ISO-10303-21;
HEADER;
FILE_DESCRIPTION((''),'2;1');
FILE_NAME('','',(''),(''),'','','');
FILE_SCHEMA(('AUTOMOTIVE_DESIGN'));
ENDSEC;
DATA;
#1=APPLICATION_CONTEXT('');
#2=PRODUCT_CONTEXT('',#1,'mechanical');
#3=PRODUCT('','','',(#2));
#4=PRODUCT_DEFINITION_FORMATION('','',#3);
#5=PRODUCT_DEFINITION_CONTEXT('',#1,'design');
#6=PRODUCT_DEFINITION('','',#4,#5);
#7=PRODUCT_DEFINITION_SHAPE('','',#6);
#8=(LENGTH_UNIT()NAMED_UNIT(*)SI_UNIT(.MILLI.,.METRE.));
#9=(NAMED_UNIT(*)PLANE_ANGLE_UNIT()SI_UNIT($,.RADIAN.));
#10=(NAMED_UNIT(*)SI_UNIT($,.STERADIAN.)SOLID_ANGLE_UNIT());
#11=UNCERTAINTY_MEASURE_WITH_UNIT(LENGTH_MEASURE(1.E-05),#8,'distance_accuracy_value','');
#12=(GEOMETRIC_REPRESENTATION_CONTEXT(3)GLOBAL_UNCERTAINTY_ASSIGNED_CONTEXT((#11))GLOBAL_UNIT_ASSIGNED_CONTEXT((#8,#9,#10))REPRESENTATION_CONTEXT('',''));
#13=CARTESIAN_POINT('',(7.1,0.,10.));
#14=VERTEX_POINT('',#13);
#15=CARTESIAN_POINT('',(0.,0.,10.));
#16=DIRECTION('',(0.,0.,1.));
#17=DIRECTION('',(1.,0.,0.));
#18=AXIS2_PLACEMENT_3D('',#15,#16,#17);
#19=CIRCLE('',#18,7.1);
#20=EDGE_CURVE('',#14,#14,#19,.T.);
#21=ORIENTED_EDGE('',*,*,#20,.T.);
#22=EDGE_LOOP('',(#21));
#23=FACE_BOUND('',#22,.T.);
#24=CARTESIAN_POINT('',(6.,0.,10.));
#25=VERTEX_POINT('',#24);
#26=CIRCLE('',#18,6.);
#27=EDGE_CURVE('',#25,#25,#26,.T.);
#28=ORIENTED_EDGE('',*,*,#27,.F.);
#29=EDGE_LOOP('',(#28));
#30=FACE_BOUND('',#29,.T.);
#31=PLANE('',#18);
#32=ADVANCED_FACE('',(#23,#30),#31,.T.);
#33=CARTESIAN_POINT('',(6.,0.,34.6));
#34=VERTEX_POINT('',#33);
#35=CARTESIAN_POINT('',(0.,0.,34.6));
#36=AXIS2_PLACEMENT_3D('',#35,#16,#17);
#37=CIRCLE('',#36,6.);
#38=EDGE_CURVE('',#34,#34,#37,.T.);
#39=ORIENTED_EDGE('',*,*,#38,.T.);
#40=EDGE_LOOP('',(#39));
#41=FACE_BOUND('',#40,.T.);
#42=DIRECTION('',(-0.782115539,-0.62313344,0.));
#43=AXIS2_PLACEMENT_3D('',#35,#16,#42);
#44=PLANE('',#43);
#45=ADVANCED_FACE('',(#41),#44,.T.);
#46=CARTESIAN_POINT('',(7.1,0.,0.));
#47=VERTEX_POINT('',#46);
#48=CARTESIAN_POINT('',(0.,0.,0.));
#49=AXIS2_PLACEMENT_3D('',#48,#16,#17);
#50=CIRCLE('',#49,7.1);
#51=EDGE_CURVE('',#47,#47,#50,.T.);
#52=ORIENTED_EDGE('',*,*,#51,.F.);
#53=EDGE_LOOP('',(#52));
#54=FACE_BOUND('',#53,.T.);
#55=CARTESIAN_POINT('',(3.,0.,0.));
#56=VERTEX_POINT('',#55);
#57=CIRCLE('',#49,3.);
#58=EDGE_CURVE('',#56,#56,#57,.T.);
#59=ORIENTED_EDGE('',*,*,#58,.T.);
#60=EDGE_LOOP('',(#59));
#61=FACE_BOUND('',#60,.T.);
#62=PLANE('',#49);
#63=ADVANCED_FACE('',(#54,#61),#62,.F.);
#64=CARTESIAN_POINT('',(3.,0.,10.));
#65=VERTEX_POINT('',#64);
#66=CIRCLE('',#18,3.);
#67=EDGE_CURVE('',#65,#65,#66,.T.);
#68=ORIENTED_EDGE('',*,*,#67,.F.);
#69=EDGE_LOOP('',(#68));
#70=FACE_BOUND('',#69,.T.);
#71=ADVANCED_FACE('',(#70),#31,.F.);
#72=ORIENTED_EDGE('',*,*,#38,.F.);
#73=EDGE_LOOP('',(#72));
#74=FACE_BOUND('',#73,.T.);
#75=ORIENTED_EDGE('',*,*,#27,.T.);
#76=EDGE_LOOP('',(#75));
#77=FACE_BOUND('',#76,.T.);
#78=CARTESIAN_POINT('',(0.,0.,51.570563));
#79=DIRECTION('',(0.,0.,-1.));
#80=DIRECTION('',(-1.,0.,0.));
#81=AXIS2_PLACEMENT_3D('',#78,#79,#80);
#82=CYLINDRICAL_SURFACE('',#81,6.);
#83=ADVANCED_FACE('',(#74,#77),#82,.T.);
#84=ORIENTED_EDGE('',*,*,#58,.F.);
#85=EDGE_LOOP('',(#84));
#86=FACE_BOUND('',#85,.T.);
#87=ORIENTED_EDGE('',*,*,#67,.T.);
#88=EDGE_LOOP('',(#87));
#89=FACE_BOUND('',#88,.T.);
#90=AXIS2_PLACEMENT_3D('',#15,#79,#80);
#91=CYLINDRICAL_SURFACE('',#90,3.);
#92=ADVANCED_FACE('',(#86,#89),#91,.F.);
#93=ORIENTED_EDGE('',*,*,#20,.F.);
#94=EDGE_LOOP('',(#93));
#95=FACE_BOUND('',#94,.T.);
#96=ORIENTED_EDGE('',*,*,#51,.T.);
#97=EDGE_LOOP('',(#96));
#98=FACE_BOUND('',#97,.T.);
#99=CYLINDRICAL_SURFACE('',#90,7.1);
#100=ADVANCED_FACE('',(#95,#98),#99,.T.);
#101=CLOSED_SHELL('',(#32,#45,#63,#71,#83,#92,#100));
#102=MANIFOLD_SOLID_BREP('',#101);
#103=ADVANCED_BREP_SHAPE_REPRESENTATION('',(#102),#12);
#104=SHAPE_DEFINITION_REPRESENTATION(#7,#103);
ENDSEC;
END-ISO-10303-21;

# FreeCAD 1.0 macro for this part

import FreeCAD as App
import Part
import Sketcher

V = App.Vector

doc = App.newDocument("Part")
body = doc.addObject("PartDesign::Body", "Body")

# Sketch on XY plane
sketch1 = body.newObject("Sketcher::SketchObject", "Sketch")
sketch1.AttachmentSupport = (doc.getObject("XY_Plane"), [""])
sketch1.MapMode = "FlatFace"
sketch1.addGeometry([
    Part.Circle(V(0, 0, 0), V(0, 0, 1), 7.1),
    Part.Circle(V(0, 0, 0), V(0, 0, 1), 3),
], False)
sketch1.addConstraint([
    Sketcher.Constraint("Coincident", 0, 3, -1, 1),
    Sketcher.Constraint("Coincident", 1, 3, -1, 1),
    Sketcher.Constraint("Diameter", 1, 6.0),
    Sketcher.Constraint("Diameter", 0, 14.2),
])
pad1 = body.newObject("PartDesign::Pad", "Pad")
pad1.Profile = sketch1
pad1.Length = 10

# Sketch on XY plane
sketch2 = body.newObject("Sketcher::SketchObject", "Sketch001")
sketch2.AttachmentSupport = (doc.getObject("XY_Plane"), [""])
sketch2.MapMode = "FlatFace"
sketch2.AttachmentOffset = App.Placement(V(0, 0, 10), App.Rotation())
sketch2.addGeometry(Part.Circle(V(0, 0, 0), V(0, 0, 1), 6), False)
sketch2.addConstraint([
    Sketcher.Constraint("Coincident", 0, 3, -1, 1),
    Sketcher.Constraint("Diameter", 0, 12.0),
])
pad2 = body.newObject("PartDesign::Pad", "Pad001")
pad2.Profile = sketch2
pad2.Length = 24.6

doc.recompute()
